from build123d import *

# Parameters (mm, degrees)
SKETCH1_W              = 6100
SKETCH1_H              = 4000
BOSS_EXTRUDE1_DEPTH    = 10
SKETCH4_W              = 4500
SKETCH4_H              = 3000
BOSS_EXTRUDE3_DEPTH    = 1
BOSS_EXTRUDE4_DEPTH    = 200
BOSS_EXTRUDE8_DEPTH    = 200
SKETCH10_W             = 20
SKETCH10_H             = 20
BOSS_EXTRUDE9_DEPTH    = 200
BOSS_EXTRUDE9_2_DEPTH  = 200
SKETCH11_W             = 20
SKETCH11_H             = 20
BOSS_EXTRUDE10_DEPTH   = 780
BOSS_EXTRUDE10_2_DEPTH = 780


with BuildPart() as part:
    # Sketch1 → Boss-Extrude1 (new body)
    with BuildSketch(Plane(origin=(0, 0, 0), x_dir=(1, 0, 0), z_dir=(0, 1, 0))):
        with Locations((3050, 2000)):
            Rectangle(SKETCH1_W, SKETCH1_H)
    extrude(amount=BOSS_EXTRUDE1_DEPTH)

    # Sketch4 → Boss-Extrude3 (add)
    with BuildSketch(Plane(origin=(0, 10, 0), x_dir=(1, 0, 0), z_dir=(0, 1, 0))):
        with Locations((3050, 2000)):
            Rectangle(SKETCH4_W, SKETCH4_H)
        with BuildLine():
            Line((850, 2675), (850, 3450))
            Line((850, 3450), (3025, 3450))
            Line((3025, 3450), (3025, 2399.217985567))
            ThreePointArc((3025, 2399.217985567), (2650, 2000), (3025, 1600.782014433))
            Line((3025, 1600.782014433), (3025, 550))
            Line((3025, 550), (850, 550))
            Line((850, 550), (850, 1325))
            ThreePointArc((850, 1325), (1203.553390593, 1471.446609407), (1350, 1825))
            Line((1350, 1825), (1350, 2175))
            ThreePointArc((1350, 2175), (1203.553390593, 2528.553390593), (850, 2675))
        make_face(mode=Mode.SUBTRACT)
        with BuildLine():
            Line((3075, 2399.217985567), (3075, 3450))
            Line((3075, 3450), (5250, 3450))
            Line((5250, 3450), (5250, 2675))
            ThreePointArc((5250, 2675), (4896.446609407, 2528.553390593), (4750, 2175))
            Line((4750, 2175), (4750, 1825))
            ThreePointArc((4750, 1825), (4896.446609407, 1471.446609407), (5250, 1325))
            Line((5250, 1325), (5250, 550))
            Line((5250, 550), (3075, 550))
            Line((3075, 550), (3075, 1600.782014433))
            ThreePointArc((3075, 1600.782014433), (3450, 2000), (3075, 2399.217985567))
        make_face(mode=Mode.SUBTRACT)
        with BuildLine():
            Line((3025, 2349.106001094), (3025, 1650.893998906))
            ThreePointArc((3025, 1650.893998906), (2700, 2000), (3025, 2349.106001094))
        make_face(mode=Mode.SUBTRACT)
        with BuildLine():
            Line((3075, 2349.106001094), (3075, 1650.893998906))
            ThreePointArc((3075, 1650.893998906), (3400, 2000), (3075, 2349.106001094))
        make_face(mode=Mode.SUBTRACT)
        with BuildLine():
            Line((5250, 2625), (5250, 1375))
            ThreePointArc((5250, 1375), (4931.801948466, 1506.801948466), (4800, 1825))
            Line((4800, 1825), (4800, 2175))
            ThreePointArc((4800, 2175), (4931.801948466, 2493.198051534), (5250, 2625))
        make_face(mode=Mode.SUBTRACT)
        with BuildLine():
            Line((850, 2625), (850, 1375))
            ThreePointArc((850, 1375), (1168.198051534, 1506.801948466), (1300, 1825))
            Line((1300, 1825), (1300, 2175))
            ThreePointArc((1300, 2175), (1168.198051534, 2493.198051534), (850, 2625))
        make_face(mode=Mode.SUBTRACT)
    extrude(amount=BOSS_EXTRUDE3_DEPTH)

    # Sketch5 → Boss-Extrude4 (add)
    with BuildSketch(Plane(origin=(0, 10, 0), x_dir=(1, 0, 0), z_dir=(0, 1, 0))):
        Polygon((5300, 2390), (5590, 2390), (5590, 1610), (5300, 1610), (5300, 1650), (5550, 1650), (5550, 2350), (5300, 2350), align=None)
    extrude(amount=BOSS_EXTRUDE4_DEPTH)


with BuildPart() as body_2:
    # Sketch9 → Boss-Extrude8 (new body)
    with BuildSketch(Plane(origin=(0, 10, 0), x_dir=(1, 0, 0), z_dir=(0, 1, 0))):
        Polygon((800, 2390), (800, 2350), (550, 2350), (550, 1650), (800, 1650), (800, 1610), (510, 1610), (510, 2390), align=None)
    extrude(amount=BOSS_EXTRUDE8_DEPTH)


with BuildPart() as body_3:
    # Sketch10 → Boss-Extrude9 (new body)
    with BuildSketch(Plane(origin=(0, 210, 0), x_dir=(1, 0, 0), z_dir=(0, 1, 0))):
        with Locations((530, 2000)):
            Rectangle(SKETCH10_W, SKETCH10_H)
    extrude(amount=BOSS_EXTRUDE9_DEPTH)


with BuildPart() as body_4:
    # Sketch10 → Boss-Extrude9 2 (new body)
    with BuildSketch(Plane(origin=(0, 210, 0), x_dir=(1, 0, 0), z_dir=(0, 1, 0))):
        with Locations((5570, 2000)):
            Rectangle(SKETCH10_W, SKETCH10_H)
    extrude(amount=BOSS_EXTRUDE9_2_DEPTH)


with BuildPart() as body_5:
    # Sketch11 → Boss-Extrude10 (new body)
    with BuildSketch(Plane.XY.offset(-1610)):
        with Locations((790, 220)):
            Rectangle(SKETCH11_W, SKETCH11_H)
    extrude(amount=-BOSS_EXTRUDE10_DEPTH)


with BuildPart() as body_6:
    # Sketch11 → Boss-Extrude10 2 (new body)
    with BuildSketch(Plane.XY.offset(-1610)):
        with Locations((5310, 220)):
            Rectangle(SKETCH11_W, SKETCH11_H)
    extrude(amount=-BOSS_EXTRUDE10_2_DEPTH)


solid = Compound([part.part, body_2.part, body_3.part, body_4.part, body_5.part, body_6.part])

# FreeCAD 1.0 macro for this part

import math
import FreeCAD as App
import Part
import Sketcher

V = App.Vector


def add_polygon(sketch, points):
    """Adds a closed chain of lines whose ends are joined by coincident constraints."""
    first, n = sketch.GeometryCount, len(points)
    for a, b in zip(points, points[1:] + points[:1]):
        sketch.addGeometry(Part.LineSegment(App.Vector(*a, 0), App.Vector(*b, 0)), False)
    for i in range(n):
        sketch.addConstraint(Sketcher.Constraint("Coincident", first + i, 2, first + (i + 1) % n, 1))

doc = App.newDocument("Part")
body = doc.addObject("PartDesign::Body", "Body")

sketch1 = body.newObject("Sketcher::SketchObject", "Sketch")
sketch1.AttachmentSupport = (doc.getObject("XZ_Plane"), [""])
sketch1.MapMode = "FlatFace"
add_polygon(sketch1, [(0, -4000), (0, 0), (6100, 0), (6100, -4000)])
sketch1.addConstraint([
    Sketcher.Constraint("Vertical", 0),
    Sketcher.Constraint("Horizontal", 1),
    Sketcher.Constraint("Vertical", 2),
    Sketcher.Constraint("Horizontal", 3),
    Sketcher.Constraint("Coincident", 0, 2, -1, 1),
    Sketcher.Constraint("DistanceX", 1, 1, 1, 2, 6100.0),
    Sketcher.Constraint("DistanceY", 0, 1, 0, 2, 4000.0),
])
pad1 = body.newObject("PartDesign::Pad", "Pad")
pad1.Profile = sketch1
pad1.Length = 10
pad1.Reversed = True

sketch2 = body.newObject("Sketcher::SketchObject", "Sketch001")
sketch2.AttachmentSupport = (doc.getObject("XZ_Plane"), [""])
sketch2.MapMode = "FlatFace"
sketch2.AttachmentOffset = App.Placement(V(0, 0, -10), App.Rotation())
add_polygon(sketch2, [(800, -3500), (800, -500), (5300, -500), (5300, -3500)])
sketch2.addGeometry(Part.LineSegment(V(850, -1375, 0), V(850, -2625, 0)), False)
sketch2.addGeometry(Part.ArcOfCircle(Part.Circle(V(850, -2175, 0), V(0, 0, 1), 450), math.radians(-90), math.radians(0)), False)
sketch2.addGeometry(Part.LineSegment(V(1300, -2175, 0), V(1300, -1825, 0)), False)
sketch2.addGeometry(Part.ArcOfCircle(Part.Circle(V(850, -1825, 0), V(0, 0, 1), 450), math.radians(0), math.radians(90)), False)
sketch2.addGeometry(Part.ArcOfCircle(Part.Circle(V(850, -2175, 0), V(0, 0, 1), 500), math.radians(-90), math.radians(0)), False)
sketch2.addGeometry(Part.LineSegment(V(850, -2675, 0), V(850, -3450, 0)), False)
sketch2.addGeometry(Part.LineSegment(V(850, -3450, 0), V(3025, -3450, 0)), False)
sketch2.addGeometry(Part.LineSegment(V(3025, -3450, 0), V(3025, -2399, 0)), False)
sketch2.addGeometry(Part.ArcOfCircle(Part.Circle(V(3050, -2000, 0), V(0, 0, 1), 400), math.radians(94), math.radians(266)), False)
sketch2.addGeometry(Part.LineSegment(V(3025, -1601, 0), V(3025, -550, 0)), False)
sketch2.addGeometry(Part.LineSegment(V(3025, -550, 0), V(850, -550, 0)), False)
sketch2.addGeometry(Part.LineSegment(V(850, -550, 0), V(850, -1325, 0)), False)
sketch2.addGeometry(Part.ArcOfCircle(Part.Circle(V(850, -1825, 0), V(0, 0, 1), 500), math.radians(0), math.radians(90)), False)
sketch2.addGeometry(Part.LineSegment(V(1350, -1825, 0), V(1350, -2175, 0)), False)
sketch2.addGeometry(Part.ArcOfCircle(Part.Circle(V(3050, -2000, 0), V(0, 0, 1), 350), math.radians(94), math.radians(266)), False)
sketch2.addGeometry(Part.LineSegment(V(3025, -2349, 0), V(3025, -1651, 0)), False)
sketch2.addGeometry(Part.LineSegment(V(3075, -1651, 0), V(3075, -2349, 0)), False)
sketch2.addGeometry(Part.ArcOfCircle(Part.Circle(V(3050, -2000, 0), V(0, 0, 1), 350), math.radians(-86), math.radians(86)), False)
sketch2.addGeometry(Part.ArcOfCircle(Part.Circle(V(3050, -2000, 0), V(0, 0, 1), 400), math.radians(-86), math.radians(86)), False)
sketch2.addGeometry(Part.LineSegment(V(3075, -2399, 0), V(3075, -3450, 0)), False)
sketch2.addGeometry(Part.LineSegment(V(3075, -3450, 0), V(5250, -3450, 0)), False)
sketch2.addGeometry(Part.LineSegment(V(5250, -3450, 0), V(5250, -2675, 0)), False)
sketch2.addGeometry(Part.ArcOfCircle(Part.Circle(V(5250, -2175, 0), V(0, 0, 1), 500), math.radians(-180), math.radians(-90)), False)
sketch2.addGeometry(Part.LineSegment(V(4750, -2175, 0), V(4750, -1825, 0)), False)
sketch2.addGeometry(Part.ArcOfCircle(Part.Circle(V(5250, -1825, 0), V(0, 0, 1), 500), math.radians(90), math.radians(180)), False)
sketch2.addGeometry(Part.LineSegment(V(5250, -1325, 0), V(5250, -550, 0)), False)
sketch2.addGeometry(Part.LineSegment(V(5250, -550, 0), V(3075, -550, 0)), False)
sketch2.addGeometry(Part.LineSegment(V(3075, -550, 0), V(3075, -1601, 0)), False)
sketch2.addGeometry(Part.ArcOfCircle(Part.Circle(V(5250, -2175, 0), V(0, 0, 1), 450), math.radians(180), math.radians(270)), False)
sketch2.addGeometry(Part.LineSegment(V(5250, -2625, 0), V(5250, -1375, 0)), False)
sketch2.addGeometry(Part.ArcOfCircle(Part.Circle(V(5250, -1825, 0), V(0, 0, 1), 450), math.radians(90), math.radians(180)), False)
sketch2.addGeometry(Part.LineSegment(V(4800, -1825, 0), V(4800, -2175, 0)), False)
sketch2.addConstraint([
    Sketcher.Constraint("Coincident", 4, 2, 5, 1),
    Sketcher.Constraint("Tangent", 5, 2, 6, 1),
    Sketcher.Constraint("Tangent", 6, 2, 7, 1),
    Sketcher.Constraint("Coincident", 7, 2, 4, 1),
    Sketcher.Constraint("Coincident", 8, 1, 9, 1),
    Sketcher.Constraint("Coincident", 9, 2, 10, 1),
    Sketcher.Constraint("Coincident", 10, 2, 11, 1),
    Sketcher.Constraint("Coincident", 11, 2, 12, 2),
    Sketcher.Constraint("Coincident", 12, 1, 13, 1),
    Sketcher.Constraint("Coincident", 13, 2, 14, 1),
    Sketcher.Constraint("Coincident", 14, 2, 15, 1),
    Sketcher.Constraint("Coincident", 15, 2, 16, 2),
    Sketcher.Constraint("Tangent", 16, 1, 17, 1),
    Sketcher.Constraint("Tangent", 17, 2, 8, 2),
    Sketcher.Constraint("Coincident", 18, 1, 19, 2),
    Sketcher.Constraint("Coincident", 19, 1, 18, 2),
    Sketcher.Constraint("Coincident", 20, 1, 21, 2),
    Sketcher.Constraint("Coincident", 21, 1, 20, 2),
    Sketcher.Constraint("Coincident", 22, 1, 23, 1),
    Sketcher.Constraint("Coincident", 23, 2, 24, 1),
    Sketcher.Constraint("Coincident", 24, 2, 25, 1),
    Sketcher.Constraint("Coincident", 25, 2, 26, 2),
    Sketcher.Constraint("Tangent", 26, 1, 27, 1),
    Sketcher.Constraint("Tangent", 27, 2, 28, 2),
    Sketcher.Constraint("Coincident", 28, 1, 29, 1),
    Sketcher.Constraint("Coincident", 29, 2, 30, 1),
    Sketcher.Constraint("Coincident", 30, 2, 31, 1),
    Sketcher.Constraint("Coincident", 31, 2, 22, 2),
    Sketcher.Constraint("Coincident", 32, 2, 33, 1),
    Sketcher.Constraint("Coincident", 33, 2, 34, 1),
    Sketcher.Constraint("Tangent", 34, 2, 35, 1),
    Sketcher.Constraint("Tangent", 35, 2, 32, 1),
    Sketcher.Constraint("Vertical", 0),
    Sketcher.Constraint("Horizontal", 1),
    Sketcher.Constraint("Vertical", 2),
    Sketcher.Constraint("Horizontal", 3),
    Sketcher.Constraint("Vertical", 4),
    Sketcher.Constraint("Vertical", 6),
    Sketcher.Constraint("Vertical", 9),
    Sketcher.Constraint("Horizontal", 10),
    Sketcher.Constraint("Vertical", 11),
    Sketcher.Constraint("Vertical", 13),
    Sketcher.Constraint("Horizontal", 14),
    Sketcher.Constraint("Vertical", 15),
    Sketcher.Constraint("Vertical", 17),
    Sketcher.Constraint("Vertical", 19),
    Sketcher.Constraint("Vertical", 20),
    Sketcher.Constraint("Vertical", 23),
    Sketcher.Constraint("Horizontal", 24),
    Sketcher.Constraint("Vertical", 25),
    Sketcher.Constraint("Vertical", 27),
    Sketcher.Constraint("Vertical", 29),
    Sketcher.Constraint("Horizontal", 30),
    Sketcher.Constraint("Vertical", 31),
    Sketcher.Constraint("Vertical", 33),
    Sketcher.Constraint("Vertical", 35),
    Sketcher.Constraint("Coincident", 8, 3, 5, 3),
    Sketcher.Constraint("Coincident", 16, 3, 7, 3),
    Sketcher.Constraint("Coincident", 18, 3, 12, 3),
    Sketcher.Constraint("Coincident", 21, 3, 12, 3),
    Sketcher.Constraint("Coincident", 22, 3, 12, 3),
    Sketcher.Constraint("Coincident", 32, 3, 26, 3),
    Sketcher.Constraint("Coincident", 34, 3, 28, 3),
    Sketcher.Constraint("Equal", 5, 7),
    Sketcher.Constraint("Equal", 18, 21),
    Sketcher.Constraint("Equal", 12, 22),
    Sketcher.Constraint("Equal", 16, 26),
    Sketcher.Constraint("Equal", 26, 28),
    Sketcher.Constraint("Equal", 7, 32),
    Sketcher.Constraint("Horizontal", 8, 3, 26, 3),
    Sketcher.Constraint("Horizontal", 16, 3, 28, 3),
    Sketcher.Constraint("Horizontal", 18, 1, 20, 1),
    Sketcher.Constraint("Horizontal", 11, 2, 22, 1),
    Sketcher.Constraint("Horizontal", 10, 2, 23, 2),
    Sketcher.Constraint("Horizontal", 14, 2, 29, 2),
    Sketcher.Constraint("Horizontal", 12, 1, 31, 2),
    Sketcher.Constraint("Vertical", 16, 3, 4, 2),
    Sketcher.Constraint("Vertical", 9, 2, 14, 2),
    Sketcher.Constraint("Vertical", 34, 3, 24, 2),
    Sketcher.Constraint("Vertical", 23, 2, 30, 2),
    Sketcher.Constraint("Vertical", 29, 2, 32, 2),
    Sketcher.Constraint("Equal", 14, 24),
    Sketcher.Constraint("Equal", 24, 30),
    Sketcher.Constraint("Equal", 11, 13),
    Sketcher.Constraint("Equal", 9, 15),
    Sketcher.Constraint("Radius", 5, 450.0),
    Sketcher.Constraint("Radius", 8, 500.0),
    Sketcher.Constraint("Radius", 12, 400.0),
    Sketcher.Constraint("Radius", 18, 350.0),
    Sketcher.Constraint("DistanceX", 1, 1, 1, 2, 4500.0),
    Sketcher.Constraint("DistanceX", 10, 1, 10, 2, 2175.0),
    Sketcher.Constraint("DistanceY", 0, 1, 0, 2, 3000.0),
    Sketcher.Constraint("DistanceY", 4, 2, 4, 1, 1250.0),
    Sketcher.Constraint("DistanceY", 9, 2, 9, 1, 775.0),
    Sketcher.Constraint("DistanceX", -1, 1, 5, 3, 850.0),
    Sketcher.Constraint("DistanceY", 5, 3, -1, 1, 2175.0),
    Sketcher.Constraint("DistanceX", -1, 1, 12, 3, 3050.0),
    Sketcher.Constraint("DistanceX", -1, 1, 26, 3, 5250.0),
    Sketcher.Constraint("DistanceX", -1, 1, 0, 2, 800.0),
    Sketcher.Constraint("DistanceY", 0, 2, -1, 1, 500.0),
    Sketcher.Constraint("DistanceX", -1, 1, 19, 1, 3025.0),
])
pad2 = body.newObject("PartDesign::Pad", "Pad001")
pad2.Profile = sketch2
pad2.Length = 1
pad2.Reversed = True

sketch3 = body.newObject("Sketcher::SketchObject", "Sketch002")
sketch3.AttachmentSupport = (doc.getObject("XZ_Plane"), [""])
sketch3.MapMode = "FlatFace"
sketch3.AttachmentOffset = App.Placement(V(0, 0, -10), App.Rotation())
add_polygon(sketch3, [(5590, -2390), (5300, -2390), (5300, -2350), (5550, -2350), (5550, -1650), (5300, -1650), (5300, -1610), (5590, -1610)])
sketch3.addConstraint([
    Sketcher.Constraint("Horizontal", 0),
    Sketcher.Constraint("Vertical", 1),
    Sketcher.Constraint("Horizontal", 2),
    Sketcher.Constraint("Vertical", 3),
    Sketcher.Constraint("Horizontal", 4),
    Sketcher.Constraint("Vertical", 5),
    Sketcher.Constraint("Horizontal", 6),
    Sketcher.Constraint("Vertical", 7),
    Sketcher.Constraint("Vertical", 1, 2, 4, 2),
    Sketcher.Constraint("Equal", 1, 5),
    Sketcher.Constraint("DistanceX", 0, 2, 0, 1, 290.0),
    Sketcher.Constraint("DistanceX", 2, 1, 2, 2, 250.0),
    Sketcher.Constraint("DistanceY", 1, 1, 1, 2, 40.0),
    Sketcher.Constraint("DistanceY", 3, 1, 3, 2, 700.0),
    Sketcher.Constraint("DistanceX", -1, 1, 0, 2, 5300.0),
    Sketcher.Constraint("DistanceY", 0, 2, -1, 1, 2390.0),
])
pad3 = body.newObject("PartDesign::Pad", "Pad002")
pad3.Profile = sketch3
pad3.Length = 200
pad3.Reversed = True
body2 = doc.addObject("PartDesign::Body", "Body001")

sketch4 = body2.newObject("Sketcher::SketchObject", "Sketch003")
sketch4.AttachmentSupport = (doc.getObject("XZ_Plane001"), [""])
sketch4.MapMode = "FlatFace"
sketch4.AttachmentOffset = App.Placement(V(0, 0, -10), App.Rotation())
add_polygon(sketch4, [(800, -2350), (800, -2390), (510, -2390), (510, -1610), (800, -1610), (800, -1650), (550, -1650), (550, -2350)])
sketch4.addConstraint([
    Sketcher.Constraint("Vertical", 0),
    Sketcher.Constraint("Horizontal", 1),
    Sketcher.Constraint("Vertical", 2),
    Sketcher.Constraint("Horizontal", 3),
    Sketcher.Constraint("Vertical", 4),
    Sketcher.Constraint("Horizontal", 5),
    Sketcher.Constraint("Vertical", 6),
    Sketcher.Constraint("Horizontal", 7),
    Sketcher.Constraint("Vertical", 0, 2, 3, 2),
    Sketcher.Constraint("Equal", 0, 4),
    Sketcher.Constraint("DistanceX", 1, 2, 1, 1, 290.0),
    Sketcher.Constraint("DistanceX", 5, 2, 5, 1, 250.0),
    Sketcher.Constraint("DistanceY", 0, 2, 0, 1, 40.0),
    Sketcher.Constraint("DistanceY", 2, 1, 2, 2, 780.0),
    Sketcher.Constraint("DistanceX", -1, 1, 0, 2, 800.0),
    Sketcher.Constraint("DistanceY", 0, 2, -1, 1, 2390.0),
])
pad4 = body2.newObject("PartDesign::Pad", "Pad003")
pad4.Profile = sketch4
pad4.Length = 200
pad4.Reversed = True
body3 = doc.addObject("PartDesign::Body", "Body002")

sketch5 = body3.newObject("Sketcher::SketchObject", "Sketch004")
sketch5.AttachmentSupport = (doc.getObject("XZ_Plane002"), [""])
sketch5.MapMode = "FlatFace"
sketch5.AttachmentOffset = App.Placement(V(0, 0, -210), App.Rotation())
add_polygon(sketch5, [(520, -2010), (520, -1990), (540, -1990), (540, -2010)])
sketch5.addConstraint([
    Sketcher.Constraint("Vertical", 0),
    Sketcher.Constraint("Horizontal", 1),
    Sketcher.Constraint("Vertical", 2),
    Sketcher.Constraint("Horizontal", 3),
    Sketcher.Constraint("Equal", 3, 0),
    Sketcher.Constraint("DistanceX", 1, 1, 1, 2, 20.0),
    Sketcher.Constraint("DistanceX", -1, 1, 0, 2, 520.0),
    Sketcher.Constraint("DistanceY", 0, 2, -1, 1, 1990.0),
])
pad5 = body3.newObject("PartDesign::Pad", "Pad004")
pad5.Profile = sketch5
pad5.Length = 200
pad5.Reversed = True
body4 = doc.addObject("PartDesign::Body", "Body003")

sketch6 = body4.newObject("Sketcher::SketchObject", "Sketch005")
sketch6.AttachmentSupport = (doc.getObject("XZ_Plane003"), [""])
sketch6.MapMode = "FlatFace"
sketch6.AttachmentOffset = App.Placement(V(0, 0, -210), App.Rotation())
add_polygon(sketch6, [(5560, -2010), (5560, -1990), (5580, -1990), (5580, -2010)])
sketch6.addConstraint([
    Sketcher.Constraint("Vertical", 0),
    Sketcher.Constraint("Horizontal", 1),
    Sketcher.Constraint("Vertical", 2),
    Sketcher.Constraint("Horizontal", 3),
    Sketcher.Constraint("Equal", 3, 0),
    Sketcher.Constraint("DistanceX", 1, 1, 1, 2, 20.0),
    Sketcher.Constraint("DistanceX", -1, 1, 0, 2, 5560.0),
    Sketcher.Constraint("DistanceY", 0, 2, -1, 1, 1990.0),
])
pad6 = body4.newObject("PartDesign::Pad", "Pad005")
pad6.Profile = sketch6
pad6.Length = 200
pad6.Reversed = True
body5 = doc.addObject("PartDesign::Body", "Body004")

sketch7 = body5.newObject("Sketcher::SketchObject", "Sketch006")
sketch7.AttachmentSupport = (doc.getObject("XY_Plane004"), [""])
sketch7.MapMode = "FlatFace"
sketch7.AttachmentOffset = App.Placement(V(0, 0, -1610), App.Rotation())
add_polygon(sketch7, [(780, 230), (780, 210), (800, 210), (800, 230)])
sketch7.addConstraint([
    Sketcher.Constraint("Vertical", 0),
    Sketcher.Constraint("Horizontal", 1),
    Sketcher.Constraint("Vertical", 2),
    Sketcher.Constraint("Horizontal", 3),
    Sketcher.Constraint("Equal", 3, 0),
    Sketcher.Constraint("DistanceX", 1, 1, 1, 2, 20.0),
    Sketcher.Constraint("DistanceX", -1, 1, 0, 2, 780.0),
    Sketcher.Constraint("DistanceY", -1, 1, 0, 2, 210.0),
])
pad7 = body5.newObject("PartDesign::Pad", "Pad006")
pad7.Profile = sketch7
pad7.Length = 780
pad7.Reversed = True
body6 = doc.addObject("PartDesign::Body", "Body005")

sketch8 = body6.newObject("Sketcher::SketchObject", "Sketch007")
sketch8.AttachmentSupport = (doc.getObject("XY_Plane005"), [""])
sketch8.MapMode = "FlatFace"
sketch8.AttachmentOffset = App.Placement(V(0, 0, -1610), App.Rotation())
add_polygon(sketch8, [(5300, 230), (5300, 210), (5320, 210), (5320, 230)])
sketch8.addConstraint([
    Sketcher.Constraint("Vertical", 0),
    Sketcher.Constraint("Horizontal", 1),
    Sketcher.Constraint("Vertical", 2),
    Sketcher.Constraint("Horizontal", 3),
    Sketcher.Constraint("Equal", 3, 0),
    Sketcher.Constraint("DistanceX", 1, 1, 1, 2, 20.0),
    Sketcher.Constraint("DistanceX", -1, 1, 0, 2, 5300.0),
    Sketcher.Constraint("DistanceY", -1, 1, 0, 2, 210.0),
])
pad8 = body6.newObject("PartDesign::Pad", "Pad007")
pad8.Profile = sketch8
pad8.Length = 780
pad8.Reversed = True

doc.recompute()
